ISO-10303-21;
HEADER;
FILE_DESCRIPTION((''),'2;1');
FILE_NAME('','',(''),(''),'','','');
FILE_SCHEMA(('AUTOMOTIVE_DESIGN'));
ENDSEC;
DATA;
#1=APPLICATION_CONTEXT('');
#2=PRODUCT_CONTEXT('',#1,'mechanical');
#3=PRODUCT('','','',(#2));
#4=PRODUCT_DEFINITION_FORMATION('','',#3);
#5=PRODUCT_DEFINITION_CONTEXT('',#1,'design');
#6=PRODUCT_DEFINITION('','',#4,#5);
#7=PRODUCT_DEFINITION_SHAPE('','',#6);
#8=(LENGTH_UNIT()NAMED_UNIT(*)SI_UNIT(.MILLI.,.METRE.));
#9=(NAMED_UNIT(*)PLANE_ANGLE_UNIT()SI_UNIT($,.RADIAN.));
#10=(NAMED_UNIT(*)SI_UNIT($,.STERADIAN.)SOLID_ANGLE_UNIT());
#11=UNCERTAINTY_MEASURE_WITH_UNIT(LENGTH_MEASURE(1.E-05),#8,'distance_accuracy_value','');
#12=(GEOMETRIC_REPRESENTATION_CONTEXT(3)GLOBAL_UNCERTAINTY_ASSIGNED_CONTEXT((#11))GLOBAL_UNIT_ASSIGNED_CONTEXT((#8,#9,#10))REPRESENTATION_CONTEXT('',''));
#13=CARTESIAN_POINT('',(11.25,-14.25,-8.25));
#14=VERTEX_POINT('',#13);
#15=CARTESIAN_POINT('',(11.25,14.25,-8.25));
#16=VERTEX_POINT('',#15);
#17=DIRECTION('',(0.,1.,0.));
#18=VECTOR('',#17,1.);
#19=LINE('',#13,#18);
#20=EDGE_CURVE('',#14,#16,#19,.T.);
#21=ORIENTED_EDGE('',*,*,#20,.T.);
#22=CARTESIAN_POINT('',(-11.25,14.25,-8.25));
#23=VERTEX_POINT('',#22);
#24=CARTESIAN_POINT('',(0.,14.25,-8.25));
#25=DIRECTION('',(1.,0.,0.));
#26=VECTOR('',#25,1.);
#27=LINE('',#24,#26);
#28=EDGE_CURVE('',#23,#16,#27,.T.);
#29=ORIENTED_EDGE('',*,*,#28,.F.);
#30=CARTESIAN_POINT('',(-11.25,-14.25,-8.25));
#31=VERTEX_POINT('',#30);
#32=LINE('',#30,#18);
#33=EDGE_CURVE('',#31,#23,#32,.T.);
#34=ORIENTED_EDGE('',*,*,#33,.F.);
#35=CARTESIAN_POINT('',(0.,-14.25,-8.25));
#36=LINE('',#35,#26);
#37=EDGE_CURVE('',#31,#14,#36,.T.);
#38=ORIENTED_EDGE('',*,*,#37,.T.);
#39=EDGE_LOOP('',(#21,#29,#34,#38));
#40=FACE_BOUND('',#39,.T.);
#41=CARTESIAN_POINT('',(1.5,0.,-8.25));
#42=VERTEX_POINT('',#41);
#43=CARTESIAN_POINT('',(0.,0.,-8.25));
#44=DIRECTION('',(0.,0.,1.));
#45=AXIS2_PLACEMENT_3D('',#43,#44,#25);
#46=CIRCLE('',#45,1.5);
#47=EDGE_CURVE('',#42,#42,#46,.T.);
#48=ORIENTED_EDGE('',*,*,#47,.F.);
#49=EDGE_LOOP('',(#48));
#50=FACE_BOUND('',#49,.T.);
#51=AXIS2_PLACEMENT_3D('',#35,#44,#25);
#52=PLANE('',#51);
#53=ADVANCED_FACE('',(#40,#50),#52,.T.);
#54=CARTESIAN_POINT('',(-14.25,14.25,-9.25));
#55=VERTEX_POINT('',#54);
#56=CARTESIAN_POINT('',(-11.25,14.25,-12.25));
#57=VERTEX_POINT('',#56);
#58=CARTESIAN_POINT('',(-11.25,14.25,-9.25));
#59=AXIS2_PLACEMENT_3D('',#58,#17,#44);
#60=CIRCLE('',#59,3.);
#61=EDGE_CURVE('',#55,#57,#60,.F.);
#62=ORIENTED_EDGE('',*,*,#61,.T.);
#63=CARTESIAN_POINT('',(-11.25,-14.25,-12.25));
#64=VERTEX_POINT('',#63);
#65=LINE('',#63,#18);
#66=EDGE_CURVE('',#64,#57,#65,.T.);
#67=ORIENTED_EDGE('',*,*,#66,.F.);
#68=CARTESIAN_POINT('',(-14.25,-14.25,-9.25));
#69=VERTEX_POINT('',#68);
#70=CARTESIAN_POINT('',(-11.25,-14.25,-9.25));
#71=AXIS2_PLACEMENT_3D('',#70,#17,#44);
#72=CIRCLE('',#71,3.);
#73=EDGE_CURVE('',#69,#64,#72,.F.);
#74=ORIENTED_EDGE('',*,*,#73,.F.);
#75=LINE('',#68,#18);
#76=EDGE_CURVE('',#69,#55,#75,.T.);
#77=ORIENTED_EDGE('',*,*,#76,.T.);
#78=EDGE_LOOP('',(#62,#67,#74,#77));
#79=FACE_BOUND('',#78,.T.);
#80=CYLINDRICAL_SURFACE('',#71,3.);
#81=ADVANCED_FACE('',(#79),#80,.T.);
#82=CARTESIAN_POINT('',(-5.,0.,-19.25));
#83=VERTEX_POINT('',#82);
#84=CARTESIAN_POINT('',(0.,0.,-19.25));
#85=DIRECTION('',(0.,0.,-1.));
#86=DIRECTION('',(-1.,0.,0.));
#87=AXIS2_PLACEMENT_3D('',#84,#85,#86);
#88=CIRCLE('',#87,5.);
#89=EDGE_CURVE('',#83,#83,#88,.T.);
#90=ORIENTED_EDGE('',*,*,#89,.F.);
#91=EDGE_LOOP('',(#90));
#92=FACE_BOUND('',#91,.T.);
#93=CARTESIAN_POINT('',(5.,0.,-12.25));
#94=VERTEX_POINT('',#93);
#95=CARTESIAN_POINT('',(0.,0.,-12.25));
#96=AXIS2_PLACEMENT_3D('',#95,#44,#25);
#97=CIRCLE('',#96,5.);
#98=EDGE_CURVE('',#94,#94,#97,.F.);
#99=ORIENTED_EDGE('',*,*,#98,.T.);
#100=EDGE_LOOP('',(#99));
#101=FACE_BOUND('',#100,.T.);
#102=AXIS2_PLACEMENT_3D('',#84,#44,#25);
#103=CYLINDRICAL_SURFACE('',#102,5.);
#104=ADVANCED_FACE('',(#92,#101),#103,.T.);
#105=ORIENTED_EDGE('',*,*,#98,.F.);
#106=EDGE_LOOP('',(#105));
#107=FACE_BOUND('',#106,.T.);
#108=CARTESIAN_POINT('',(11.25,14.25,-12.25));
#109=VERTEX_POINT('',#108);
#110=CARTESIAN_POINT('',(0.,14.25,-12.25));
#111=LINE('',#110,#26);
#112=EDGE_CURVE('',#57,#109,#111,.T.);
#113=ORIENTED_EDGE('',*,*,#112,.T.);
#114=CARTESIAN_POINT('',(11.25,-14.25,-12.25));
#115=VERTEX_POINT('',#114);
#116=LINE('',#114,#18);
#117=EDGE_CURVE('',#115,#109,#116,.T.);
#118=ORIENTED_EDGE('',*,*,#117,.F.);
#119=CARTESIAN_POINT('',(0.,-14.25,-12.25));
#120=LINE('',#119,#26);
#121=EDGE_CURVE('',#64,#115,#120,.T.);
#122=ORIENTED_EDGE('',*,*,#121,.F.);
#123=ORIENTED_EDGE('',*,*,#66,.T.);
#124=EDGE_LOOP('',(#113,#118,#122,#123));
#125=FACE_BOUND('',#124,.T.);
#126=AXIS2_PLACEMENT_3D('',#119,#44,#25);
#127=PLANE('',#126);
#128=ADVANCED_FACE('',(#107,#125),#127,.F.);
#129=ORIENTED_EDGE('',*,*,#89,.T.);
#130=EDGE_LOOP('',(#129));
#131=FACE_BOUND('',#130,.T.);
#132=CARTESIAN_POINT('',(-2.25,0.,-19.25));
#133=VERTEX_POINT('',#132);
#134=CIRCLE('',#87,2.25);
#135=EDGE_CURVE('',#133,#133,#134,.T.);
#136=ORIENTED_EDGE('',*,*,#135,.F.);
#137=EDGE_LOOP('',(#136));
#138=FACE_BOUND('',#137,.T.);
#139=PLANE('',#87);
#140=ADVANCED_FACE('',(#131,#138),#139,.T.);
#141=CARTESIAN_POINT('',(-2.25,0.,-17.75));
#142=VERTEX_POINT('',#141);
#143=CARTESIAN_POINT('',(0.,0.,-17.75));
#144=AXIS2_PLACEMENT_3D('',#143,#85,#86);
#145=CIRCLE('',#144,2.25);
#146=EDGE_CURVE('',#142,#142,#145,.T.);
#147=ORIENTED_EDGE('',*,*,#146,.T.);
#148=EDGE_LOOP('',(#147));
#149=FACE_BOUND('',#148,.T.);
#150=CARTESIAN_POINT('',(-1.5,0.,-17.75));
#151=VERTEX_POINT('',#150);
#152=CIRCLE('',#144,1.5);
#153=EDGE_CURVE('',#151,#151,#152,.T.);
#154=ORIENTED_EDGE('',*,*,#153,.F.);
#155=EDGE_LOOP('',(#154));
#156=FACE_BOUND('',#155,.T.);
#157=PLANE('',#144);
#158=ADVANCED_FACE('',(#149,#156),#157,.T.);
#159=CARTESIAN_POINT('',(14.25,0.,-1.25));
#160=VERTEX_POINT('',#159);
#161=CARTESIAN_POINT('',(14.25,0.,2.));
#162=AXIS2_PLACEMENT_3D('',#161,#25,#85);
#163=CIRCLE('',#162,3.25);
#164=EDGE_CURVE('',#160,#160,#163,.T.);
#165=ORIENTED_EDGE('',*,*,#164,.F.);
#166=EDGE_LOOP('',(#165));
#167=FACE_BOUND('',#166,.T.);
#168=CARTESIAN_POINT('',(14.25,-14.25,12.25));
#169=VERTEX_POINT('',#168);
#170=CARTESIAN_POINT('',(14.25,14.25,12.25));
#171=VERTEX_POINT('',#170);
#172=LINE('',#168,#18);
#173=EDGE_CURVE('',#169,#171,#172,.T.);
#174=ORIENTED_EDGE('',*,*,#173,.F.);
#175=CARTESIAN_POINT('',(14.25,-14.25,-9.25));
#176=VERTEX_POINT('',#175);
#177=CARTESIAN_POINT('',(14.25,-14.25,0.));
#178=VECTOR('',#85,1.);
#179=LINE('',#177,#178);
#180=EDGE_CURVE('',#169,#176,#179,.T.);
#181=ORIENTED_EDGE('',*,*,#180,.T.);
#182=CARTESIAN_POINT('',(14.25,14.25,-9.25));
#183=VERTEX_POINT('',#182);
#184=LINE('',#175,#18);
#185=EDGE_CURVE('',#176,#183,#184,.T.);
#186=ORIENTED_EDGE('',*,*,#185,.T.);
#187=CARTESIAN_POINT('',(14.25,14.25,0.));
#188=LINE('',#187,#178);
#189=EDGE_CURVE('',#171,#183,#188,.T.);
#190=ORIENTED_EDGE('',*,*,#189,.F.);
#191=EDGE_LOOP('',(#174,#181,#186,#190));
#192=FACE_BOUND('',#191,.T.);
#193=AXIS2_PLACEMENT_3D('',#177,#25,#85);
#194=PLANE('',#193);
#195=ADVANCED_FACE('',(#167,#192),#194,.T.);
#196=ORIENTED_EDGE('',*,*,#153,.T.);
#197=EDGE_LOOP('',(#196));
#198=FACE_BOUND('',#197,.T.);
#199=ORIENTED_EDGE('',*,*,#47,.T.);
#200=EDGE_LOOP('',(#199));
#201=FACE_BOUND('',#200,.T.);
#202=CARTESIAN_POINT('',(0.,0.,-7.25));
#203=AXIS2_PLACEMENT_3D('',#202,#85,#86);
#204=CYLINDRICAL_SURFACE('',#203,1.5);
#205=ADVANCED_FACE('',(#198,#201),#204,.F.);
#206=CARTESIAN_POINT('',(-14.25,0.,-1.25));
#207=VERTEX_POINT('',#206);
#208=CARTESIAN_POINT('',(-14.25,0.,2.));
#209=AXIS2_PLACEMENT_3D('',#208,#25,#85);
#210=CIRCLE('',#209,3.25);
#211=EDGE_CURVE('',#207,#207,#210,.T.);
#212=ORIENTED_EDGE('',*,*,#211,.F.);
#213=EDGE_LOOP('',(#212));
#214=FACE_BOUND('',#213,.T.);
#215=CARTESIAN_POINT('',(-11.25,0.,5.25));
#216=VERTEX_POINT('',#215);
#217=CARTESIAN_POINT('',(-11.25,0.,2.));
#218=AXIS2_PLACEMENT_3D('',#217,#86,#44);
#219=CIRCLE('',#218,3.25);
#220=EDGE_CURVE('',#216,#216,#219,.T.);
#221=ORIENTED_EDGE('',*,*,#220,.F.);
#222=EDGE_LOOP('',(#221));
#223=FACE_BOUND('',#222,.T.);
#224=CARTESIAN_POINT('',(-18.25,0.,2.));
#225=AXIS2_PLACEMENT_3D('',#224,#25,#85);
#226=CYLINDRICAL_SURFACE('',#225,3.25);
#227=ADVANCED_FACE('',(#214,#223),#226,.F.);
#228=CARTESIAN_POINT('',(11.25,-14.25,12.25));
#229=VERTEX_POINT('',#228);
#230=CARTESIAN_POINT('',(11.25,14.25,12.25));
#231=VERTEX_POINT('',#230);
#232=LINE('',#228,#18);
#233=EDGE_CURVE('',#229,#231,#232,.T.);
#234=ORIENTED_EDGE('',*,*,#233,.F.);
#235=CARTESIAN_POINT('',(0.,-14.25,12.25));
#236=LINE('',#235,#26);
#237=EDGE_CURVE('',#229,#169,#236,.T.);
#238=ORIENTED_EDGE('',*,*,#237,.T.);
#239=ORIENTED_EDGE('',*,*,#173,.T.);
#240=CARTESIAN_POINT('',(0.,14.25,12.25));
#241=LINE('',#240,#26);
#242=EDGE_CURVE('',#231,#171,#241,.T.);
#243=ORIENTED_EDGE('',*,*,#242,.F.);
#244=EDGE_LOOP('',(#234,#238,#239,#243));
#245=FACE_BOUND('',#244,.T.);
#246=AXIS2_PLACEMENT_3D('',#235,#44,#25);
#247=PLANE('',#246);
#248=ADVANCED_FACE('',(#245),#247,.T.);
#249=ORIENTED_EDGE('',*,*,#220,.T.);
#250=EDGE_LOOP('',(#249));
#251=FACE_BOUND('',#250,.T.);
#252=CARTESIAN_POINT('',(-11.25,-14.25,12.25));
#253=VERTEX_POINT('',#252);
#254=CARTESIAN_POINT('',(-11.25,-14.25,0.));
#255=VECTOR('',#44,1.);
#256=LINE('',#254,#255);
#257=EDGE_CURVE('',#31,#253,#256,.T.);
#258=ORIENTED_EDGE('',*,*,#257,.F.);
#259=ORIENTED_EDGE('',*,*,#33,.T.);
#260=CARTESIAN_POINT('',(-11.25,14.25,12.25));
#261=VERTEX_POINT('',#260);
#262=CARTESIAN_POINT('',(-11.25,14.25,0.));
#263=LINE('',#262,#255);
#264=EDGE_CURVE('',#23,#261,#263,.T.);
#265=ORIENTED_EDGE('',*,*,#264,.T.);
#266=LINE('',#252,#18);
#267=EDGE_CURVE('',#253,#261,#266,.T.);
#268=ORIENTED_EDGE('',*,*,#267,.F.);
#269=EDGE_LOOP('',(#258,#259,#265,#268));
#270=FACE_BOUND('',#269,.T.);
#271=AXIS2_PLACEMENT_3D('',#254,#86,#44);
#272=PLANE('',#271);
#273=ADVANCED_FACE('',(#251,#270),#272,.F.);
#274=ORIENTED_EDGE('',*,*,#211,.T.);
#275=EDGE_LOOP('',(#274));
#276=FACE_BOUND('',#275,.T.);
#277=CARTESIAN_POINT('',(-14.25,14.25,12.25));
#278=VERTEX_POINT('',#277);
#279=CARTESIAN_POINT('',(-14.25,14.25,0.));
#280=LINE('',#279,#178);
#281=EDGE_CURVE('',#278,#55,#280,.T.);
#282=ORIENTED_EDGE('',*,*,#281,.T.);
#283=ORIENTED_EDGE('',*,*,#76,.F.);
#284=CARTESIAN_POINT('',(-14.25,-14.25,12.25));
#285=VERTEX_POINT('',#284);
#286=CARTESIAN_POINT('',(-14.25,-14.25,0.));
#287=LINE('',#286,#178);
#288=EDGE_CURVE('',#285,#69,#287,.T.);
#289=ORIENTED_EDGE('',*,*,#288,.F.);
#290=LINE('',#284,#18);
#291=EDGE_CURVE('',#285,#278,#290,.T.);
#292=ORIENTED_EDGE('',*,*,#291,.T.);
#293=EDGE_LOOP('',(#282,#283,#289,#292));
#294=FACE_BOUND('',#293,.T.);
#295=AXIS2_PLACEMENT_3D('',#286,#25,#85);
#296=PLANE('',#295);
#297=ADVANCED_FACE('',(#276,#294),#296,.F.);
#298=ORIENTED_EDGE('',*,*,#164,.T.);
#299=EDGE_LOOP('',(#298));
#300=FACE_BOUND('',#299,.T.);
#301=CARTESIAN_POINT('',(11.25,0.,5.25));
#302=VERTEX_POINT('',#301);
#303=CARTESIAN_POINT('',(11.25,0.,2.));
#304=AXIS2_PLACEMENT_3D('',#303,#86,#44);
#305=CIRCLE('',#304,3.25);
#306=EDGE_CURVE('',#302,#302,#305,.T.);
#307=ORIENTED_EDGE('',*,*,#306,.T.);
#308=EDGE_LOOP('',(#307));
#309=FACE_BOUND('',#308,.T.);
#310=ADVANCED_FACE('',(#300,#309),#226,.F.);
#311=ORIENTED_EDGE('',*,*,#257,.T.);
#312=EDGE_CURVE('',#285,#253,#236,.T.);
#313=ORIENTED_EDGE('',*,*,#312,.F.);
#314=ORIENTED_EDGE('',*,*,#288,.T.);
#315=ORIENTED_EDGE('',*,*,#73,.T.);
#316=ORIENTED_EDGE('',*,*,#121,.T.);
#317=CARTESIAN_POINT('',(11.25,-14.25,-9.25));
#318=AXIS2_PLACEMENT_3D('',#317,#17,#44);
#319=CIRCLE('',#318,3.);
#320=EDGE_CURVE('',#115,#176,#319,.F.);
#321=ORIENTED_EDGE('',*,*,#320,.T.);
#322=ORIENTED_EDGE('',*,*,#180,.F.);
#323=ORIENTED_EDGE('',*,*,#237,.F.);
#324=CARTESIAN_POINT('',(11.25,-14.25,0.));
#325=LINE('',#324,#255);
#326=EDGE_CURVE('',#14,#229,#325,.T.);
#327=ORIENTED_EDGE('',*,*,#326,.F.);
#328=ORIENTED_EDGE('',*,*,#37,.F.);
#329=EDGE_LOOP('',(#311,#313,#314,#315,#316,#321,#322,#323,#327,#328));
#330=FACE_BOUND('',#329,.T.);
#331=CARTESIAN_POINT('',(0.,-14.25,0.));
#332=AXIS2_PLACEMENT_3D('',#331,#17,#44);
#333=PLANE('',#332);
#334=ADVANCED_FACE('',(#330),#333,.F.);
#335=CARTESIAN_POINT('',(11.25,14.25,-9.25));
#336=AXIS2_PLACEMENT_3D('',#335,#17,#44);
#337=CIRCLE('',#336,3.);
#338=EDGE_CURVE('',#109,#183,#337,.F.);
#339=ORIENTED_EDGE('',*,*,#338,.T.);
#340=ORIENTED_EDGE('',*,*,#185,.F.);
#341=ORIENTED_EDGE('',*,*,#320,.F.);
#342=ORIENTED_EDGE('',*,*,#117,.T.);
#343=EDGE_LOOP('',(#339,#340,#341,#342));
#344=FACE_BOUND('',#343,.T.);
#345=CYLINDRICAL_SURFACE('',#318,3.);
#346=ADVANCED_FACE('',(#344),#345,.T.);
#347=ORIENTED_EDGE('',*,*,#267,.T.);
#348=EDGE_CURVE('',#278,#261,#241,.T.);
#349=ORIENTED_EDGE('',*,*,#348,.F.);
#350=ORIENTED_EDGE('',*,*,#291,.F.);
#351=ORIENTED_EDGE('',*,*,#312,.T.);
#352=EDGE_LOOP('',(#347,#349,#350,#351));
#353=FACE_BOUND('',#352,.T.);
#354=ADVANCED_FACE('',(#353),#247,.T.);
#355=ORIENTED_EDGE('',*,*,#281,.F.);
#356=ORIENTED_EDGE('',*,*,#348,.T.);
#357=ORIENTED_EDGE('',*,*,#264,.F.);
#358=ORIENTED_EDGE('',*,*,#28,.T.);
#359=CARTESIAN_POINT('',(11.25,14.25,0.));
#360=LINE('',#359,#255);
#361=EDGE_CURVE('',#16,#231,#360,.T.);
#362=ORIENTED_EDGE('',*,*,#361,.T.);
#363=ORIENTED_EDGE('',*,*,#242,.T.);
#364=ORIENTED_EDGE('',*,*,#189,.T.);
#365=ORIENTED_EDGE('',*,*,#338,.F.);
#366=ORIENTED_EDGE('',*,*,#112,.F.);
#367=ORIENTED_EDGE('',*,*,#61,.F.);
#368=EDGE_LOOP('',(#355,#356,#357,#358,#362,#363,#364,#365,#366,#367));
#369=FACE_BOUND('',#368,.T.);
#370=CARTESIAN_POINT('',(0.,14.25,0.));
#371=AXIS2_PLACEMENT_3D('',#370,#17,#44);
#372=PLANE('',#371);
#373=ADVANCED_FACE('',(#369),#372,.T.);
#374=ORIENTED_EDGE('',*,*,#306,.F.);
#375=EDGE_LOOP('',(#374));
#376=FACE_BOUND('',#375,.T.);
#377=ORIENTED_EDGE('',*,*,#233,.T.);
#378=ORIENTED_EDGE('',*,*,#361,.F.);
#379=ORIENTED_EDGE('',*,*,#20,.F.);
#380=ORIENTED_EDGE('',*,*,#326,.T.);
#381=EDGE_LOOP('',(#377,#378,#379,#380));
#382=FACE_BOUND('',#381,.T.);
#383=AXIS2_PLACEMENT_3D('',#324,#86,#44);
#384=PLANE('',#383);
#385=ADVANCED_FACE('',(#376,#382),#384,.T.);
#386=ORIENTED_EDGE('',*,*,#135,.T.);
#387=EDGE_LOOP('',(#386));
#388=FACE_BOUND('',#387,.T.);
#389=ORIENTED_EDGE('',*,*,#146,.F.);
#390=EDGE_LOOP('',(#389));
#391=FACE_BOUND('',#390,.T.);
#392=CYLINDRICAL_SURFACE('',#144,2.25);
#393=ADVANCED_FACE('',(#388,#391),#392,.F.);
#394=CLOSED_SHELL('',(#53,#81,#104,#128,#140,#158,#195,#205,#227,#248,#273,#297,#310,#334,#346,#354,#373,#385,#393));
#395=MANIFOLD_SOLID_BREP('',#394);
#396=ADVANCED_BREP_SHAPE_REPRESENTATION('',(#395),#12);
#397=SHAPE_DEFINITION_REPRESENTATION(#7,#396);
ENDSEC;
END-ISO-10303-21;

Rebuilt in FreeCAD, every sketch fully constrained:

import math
import FreeCAD as App
import Part
import Sketcher

V = App.Vector

doc = App.newDocument("Part")
body = doc.addObject("PartDesign::Body", "Body")

# Sketch on XZ plane
sketch1 = doc.addObject("Sketcher::SketchObject", "Sketch")
body.addObject(sketch1)
sketch1.AttachmentSupport = (doc.XZ_Plane, [""])
sketch1.MapMode = "FlatFace"
sketch1.addGeometry([
    Part.LineSegment(V(-14.2, -9.2, 0), V(-14.2, 12.2, 0)),  # 0
    Part.LineSegment(V(-14.2, 12.2, 0), V(-11.2, 12.2, 0)),  # 1
    Part.LineSegment(V(-11.2, 12.2, 0), V(-11.2, -8.2, 0)),  # 2
    Part.LineSegment(V(-11.2, -8.2, 0), V(11.2, -8.2, 0)),  # 3
    Part.LineSegment(V(11.2, -8.2, 0), V(11.2, 12.2, 0)),  # 4
    Part.LineSegment(V(11.2, 12.2, 0), V(14.2, 12.2, 0)),  # 5
    Part.LineSegment(V(14.2, 12.2, 0), V(14.2, -9.2, 0)),  # 6
    Part.ArcOfCircle(Part.Circle(V(11.3, -9.3, 0), V(0, 0, 1), 3), math.radians(-90), math.radians(0)),  # 7
    Part.LineSegment(V(11.2, -12.2, 0), V(-11.2, -12.2, 0)),  # 8
    Part.ArcOfCircle(Part.Circle(V(-11.3, -9.3, 0), V(0, 0, 1), 3), math.radians(180), math.radians(270)),  # 9
], False)
sketch1.addConstraint([
    Sketcher.Constraint("Coincident", 0, 2, 1, 1),
    Sketcher.Constraint("Coincident", 1, 2, 2, 1),
    Sketcher.Constraint("Coincident", 2, 2, 3, 1),
    Sketcher.Constraint("Coincident", 3, 2, 4, 1),
    Sketcher.Constraint("Coincident", 4, 2, 5, 1),
    Sketcher.Constraint("Coincident", 5, 2, 6, 1),
    Sketcher.Constraint("Tangent", 6, 2, 7, 2),
    Sketcher.Constraint("Tangent", 7, 1, 8, 1),
    Sketcher.Constraint("Tangent", 8, 2, 9, 2),
    Sketcher.Constraint("Tangent", 9, 1, 0, 1),
    Sketcher.Constraint("Vertical", 0),
    Sketcher.Constraint("Horizontal", 1),
    Sketcher.Constraint("Vertical", 2),
    Sketcher.Constraint("Horizontal", 3),
    Sketcher.Constraint("Vertical", 4),
    Sketcher.Constraint("Horizontal", 5),
    Sketcher.Constraint("Vertical", 6),
    Sketcher.Constraint("Horizontal", 8),
    Sketcher.Constraint("Equal", 7, 9),
    Sketcher.Constraint("Symmetric", 1, 2, 7, 1, -1, 1),
    Sketcher.Constraint("Symmetric", 4, 2, 8, 2, -1, 1),
    Sketcher.Constraint("Vertical", 9, 3, 1, 2),
    Sketcher.Constraint("Radius", 7, 3.0),
    Sketcher.Constraint("DistanceX", 3, 1, 3, 2, 22.5),
    Sketcher.Constraint("DistanceY", 0, 1, 0, 2, 21.5),
    Sketcher.Constraint("DistanceY", 2, 2, 2, 1, 20.5),
])
pad1 = doc.addObject("PartDesign::Pad", "Pad")
body.addObject(pad1)
pad1.Profile = sketch1
pad1.Type = "TwoLengths"
pad1.Length = 14.25
pad1.Length2 = 14.25
pad1.Reversed = True

# Sketch on XY plane
sketch2 = doc.addObject("Sketcher::SketchObject", "Sketch001")
body.addObject(sketch2)
sketch2.AttachmentSupport = (doc.XY_Plane, [""])
sketch2.MapMode = "FlatFace"
sketch2.AttachmentOffset = App.Placement(V(0, 0, -12.25), App.Rotation())
sketch2.addGeometry(Part.Circle(V(0, 0, 0), V(0, 0, 1), 5), False)
sketch2.addConstraint([
    Sketcher.Constraint("Coincident", 0, 3, -1, 1),
    Sketcher.Constraint("Diameter", 0, 10.0),
])
pad2 = doc.addObject("PartDesign::Pad", "Pad001")
body.addObject(pad2)
pad2.Profile = sketch2
pad2.Length = 7
pad2.Reversed = True

# Sketch on XY plane
sketch3 = doc.addObject("Sketcher::SketchObject", "Sketch002")
body.addObject(sketch3)
sketch3.AttachmentSupport = (doc.XY_Plane, [""])
sketch3.MapMode = "FlatFace"
sketch3.AttachmentOffset = App.Placement(V(0, 0, -19.25), App.Rotation())
sketch3.addGeometry(Part.Circle(V(0, 0, 0), V(0, 0, 1), 2.2), False)
sketch3.addConstraint([
    Sketcher.Constraint("Coincident", 0, 3, -1, 1),
    Sketcher.Constraint("Diameter", 0, 4.5),
])
pocket1 = doc.addObject("PartDesign::Pocket", "Pocket")
body.addObject(pocket1)
pocket1.Profile = sketch3
pocket1.Length = 1.5
pocket1.Reversed = True

# Sketch on XY plane
sketch4 = doc.addObject("Sketcher::SketchObject", "Sketch003")
body.addObject(sketch4)
sketch4.AttachmentSupport = (doc.XY_Plane, [""])
sketch4.MapMode = "FlatFace"
sketch4.AttachmentOffset = App.Placement(V(0, 0, -17.75), App.Rotation())
sketch4.addGeometry(Part.Circle(V(0, 0, 0), V(0, 0, 1), 1.5), False)
sketch4.addConstraint([
    Sketcher.Constraint("Coincident", 0, 3, -1, 1),
    Sketcher.Constraint("Diameter", 0, 3.0),
])
pocket2 = doc.addObject("PartDesign::Pocket", "Pocket001")
body.addObject(pocket2)
pocket2.Profile = sketch4
pocket2.Length = 10.5
pocket2.Reversed = True

# Sketch on YZ plane
sketch5 = doc.addObject("Sketcher::SketchObject", "Sketch004")
body.addObject(sketch5)
sketch5.AttachmentSupport = (doc.YZ_Plane, [""])
sketch5.MapMode = "FlatFace"
sketch5.AttachmentOffset = App.Placement(V(0, 0, 14.25), App.Rotation())
sketch5.addGeometry(Part.Circle(V(0, 2, 0), V(0, 0, 1), 3.2), False)
sketch5.addConstraint([
    Sketcher.Constraint("PointOnObject", 0, 3, -2),
    Sketcher.Constraint("Diameter", 0, 6.5),
    Sketcher.Constraint("DistanceY", -1, 1, 0, 3, 2.0),
])
pocket3 = doc.addObject("PartDesign::Pocket", "Pocket002")
body.addObject(pocket3)
pocket3.Profile = sketch5
pocket3.Length = 32.5

doc.recompute()
